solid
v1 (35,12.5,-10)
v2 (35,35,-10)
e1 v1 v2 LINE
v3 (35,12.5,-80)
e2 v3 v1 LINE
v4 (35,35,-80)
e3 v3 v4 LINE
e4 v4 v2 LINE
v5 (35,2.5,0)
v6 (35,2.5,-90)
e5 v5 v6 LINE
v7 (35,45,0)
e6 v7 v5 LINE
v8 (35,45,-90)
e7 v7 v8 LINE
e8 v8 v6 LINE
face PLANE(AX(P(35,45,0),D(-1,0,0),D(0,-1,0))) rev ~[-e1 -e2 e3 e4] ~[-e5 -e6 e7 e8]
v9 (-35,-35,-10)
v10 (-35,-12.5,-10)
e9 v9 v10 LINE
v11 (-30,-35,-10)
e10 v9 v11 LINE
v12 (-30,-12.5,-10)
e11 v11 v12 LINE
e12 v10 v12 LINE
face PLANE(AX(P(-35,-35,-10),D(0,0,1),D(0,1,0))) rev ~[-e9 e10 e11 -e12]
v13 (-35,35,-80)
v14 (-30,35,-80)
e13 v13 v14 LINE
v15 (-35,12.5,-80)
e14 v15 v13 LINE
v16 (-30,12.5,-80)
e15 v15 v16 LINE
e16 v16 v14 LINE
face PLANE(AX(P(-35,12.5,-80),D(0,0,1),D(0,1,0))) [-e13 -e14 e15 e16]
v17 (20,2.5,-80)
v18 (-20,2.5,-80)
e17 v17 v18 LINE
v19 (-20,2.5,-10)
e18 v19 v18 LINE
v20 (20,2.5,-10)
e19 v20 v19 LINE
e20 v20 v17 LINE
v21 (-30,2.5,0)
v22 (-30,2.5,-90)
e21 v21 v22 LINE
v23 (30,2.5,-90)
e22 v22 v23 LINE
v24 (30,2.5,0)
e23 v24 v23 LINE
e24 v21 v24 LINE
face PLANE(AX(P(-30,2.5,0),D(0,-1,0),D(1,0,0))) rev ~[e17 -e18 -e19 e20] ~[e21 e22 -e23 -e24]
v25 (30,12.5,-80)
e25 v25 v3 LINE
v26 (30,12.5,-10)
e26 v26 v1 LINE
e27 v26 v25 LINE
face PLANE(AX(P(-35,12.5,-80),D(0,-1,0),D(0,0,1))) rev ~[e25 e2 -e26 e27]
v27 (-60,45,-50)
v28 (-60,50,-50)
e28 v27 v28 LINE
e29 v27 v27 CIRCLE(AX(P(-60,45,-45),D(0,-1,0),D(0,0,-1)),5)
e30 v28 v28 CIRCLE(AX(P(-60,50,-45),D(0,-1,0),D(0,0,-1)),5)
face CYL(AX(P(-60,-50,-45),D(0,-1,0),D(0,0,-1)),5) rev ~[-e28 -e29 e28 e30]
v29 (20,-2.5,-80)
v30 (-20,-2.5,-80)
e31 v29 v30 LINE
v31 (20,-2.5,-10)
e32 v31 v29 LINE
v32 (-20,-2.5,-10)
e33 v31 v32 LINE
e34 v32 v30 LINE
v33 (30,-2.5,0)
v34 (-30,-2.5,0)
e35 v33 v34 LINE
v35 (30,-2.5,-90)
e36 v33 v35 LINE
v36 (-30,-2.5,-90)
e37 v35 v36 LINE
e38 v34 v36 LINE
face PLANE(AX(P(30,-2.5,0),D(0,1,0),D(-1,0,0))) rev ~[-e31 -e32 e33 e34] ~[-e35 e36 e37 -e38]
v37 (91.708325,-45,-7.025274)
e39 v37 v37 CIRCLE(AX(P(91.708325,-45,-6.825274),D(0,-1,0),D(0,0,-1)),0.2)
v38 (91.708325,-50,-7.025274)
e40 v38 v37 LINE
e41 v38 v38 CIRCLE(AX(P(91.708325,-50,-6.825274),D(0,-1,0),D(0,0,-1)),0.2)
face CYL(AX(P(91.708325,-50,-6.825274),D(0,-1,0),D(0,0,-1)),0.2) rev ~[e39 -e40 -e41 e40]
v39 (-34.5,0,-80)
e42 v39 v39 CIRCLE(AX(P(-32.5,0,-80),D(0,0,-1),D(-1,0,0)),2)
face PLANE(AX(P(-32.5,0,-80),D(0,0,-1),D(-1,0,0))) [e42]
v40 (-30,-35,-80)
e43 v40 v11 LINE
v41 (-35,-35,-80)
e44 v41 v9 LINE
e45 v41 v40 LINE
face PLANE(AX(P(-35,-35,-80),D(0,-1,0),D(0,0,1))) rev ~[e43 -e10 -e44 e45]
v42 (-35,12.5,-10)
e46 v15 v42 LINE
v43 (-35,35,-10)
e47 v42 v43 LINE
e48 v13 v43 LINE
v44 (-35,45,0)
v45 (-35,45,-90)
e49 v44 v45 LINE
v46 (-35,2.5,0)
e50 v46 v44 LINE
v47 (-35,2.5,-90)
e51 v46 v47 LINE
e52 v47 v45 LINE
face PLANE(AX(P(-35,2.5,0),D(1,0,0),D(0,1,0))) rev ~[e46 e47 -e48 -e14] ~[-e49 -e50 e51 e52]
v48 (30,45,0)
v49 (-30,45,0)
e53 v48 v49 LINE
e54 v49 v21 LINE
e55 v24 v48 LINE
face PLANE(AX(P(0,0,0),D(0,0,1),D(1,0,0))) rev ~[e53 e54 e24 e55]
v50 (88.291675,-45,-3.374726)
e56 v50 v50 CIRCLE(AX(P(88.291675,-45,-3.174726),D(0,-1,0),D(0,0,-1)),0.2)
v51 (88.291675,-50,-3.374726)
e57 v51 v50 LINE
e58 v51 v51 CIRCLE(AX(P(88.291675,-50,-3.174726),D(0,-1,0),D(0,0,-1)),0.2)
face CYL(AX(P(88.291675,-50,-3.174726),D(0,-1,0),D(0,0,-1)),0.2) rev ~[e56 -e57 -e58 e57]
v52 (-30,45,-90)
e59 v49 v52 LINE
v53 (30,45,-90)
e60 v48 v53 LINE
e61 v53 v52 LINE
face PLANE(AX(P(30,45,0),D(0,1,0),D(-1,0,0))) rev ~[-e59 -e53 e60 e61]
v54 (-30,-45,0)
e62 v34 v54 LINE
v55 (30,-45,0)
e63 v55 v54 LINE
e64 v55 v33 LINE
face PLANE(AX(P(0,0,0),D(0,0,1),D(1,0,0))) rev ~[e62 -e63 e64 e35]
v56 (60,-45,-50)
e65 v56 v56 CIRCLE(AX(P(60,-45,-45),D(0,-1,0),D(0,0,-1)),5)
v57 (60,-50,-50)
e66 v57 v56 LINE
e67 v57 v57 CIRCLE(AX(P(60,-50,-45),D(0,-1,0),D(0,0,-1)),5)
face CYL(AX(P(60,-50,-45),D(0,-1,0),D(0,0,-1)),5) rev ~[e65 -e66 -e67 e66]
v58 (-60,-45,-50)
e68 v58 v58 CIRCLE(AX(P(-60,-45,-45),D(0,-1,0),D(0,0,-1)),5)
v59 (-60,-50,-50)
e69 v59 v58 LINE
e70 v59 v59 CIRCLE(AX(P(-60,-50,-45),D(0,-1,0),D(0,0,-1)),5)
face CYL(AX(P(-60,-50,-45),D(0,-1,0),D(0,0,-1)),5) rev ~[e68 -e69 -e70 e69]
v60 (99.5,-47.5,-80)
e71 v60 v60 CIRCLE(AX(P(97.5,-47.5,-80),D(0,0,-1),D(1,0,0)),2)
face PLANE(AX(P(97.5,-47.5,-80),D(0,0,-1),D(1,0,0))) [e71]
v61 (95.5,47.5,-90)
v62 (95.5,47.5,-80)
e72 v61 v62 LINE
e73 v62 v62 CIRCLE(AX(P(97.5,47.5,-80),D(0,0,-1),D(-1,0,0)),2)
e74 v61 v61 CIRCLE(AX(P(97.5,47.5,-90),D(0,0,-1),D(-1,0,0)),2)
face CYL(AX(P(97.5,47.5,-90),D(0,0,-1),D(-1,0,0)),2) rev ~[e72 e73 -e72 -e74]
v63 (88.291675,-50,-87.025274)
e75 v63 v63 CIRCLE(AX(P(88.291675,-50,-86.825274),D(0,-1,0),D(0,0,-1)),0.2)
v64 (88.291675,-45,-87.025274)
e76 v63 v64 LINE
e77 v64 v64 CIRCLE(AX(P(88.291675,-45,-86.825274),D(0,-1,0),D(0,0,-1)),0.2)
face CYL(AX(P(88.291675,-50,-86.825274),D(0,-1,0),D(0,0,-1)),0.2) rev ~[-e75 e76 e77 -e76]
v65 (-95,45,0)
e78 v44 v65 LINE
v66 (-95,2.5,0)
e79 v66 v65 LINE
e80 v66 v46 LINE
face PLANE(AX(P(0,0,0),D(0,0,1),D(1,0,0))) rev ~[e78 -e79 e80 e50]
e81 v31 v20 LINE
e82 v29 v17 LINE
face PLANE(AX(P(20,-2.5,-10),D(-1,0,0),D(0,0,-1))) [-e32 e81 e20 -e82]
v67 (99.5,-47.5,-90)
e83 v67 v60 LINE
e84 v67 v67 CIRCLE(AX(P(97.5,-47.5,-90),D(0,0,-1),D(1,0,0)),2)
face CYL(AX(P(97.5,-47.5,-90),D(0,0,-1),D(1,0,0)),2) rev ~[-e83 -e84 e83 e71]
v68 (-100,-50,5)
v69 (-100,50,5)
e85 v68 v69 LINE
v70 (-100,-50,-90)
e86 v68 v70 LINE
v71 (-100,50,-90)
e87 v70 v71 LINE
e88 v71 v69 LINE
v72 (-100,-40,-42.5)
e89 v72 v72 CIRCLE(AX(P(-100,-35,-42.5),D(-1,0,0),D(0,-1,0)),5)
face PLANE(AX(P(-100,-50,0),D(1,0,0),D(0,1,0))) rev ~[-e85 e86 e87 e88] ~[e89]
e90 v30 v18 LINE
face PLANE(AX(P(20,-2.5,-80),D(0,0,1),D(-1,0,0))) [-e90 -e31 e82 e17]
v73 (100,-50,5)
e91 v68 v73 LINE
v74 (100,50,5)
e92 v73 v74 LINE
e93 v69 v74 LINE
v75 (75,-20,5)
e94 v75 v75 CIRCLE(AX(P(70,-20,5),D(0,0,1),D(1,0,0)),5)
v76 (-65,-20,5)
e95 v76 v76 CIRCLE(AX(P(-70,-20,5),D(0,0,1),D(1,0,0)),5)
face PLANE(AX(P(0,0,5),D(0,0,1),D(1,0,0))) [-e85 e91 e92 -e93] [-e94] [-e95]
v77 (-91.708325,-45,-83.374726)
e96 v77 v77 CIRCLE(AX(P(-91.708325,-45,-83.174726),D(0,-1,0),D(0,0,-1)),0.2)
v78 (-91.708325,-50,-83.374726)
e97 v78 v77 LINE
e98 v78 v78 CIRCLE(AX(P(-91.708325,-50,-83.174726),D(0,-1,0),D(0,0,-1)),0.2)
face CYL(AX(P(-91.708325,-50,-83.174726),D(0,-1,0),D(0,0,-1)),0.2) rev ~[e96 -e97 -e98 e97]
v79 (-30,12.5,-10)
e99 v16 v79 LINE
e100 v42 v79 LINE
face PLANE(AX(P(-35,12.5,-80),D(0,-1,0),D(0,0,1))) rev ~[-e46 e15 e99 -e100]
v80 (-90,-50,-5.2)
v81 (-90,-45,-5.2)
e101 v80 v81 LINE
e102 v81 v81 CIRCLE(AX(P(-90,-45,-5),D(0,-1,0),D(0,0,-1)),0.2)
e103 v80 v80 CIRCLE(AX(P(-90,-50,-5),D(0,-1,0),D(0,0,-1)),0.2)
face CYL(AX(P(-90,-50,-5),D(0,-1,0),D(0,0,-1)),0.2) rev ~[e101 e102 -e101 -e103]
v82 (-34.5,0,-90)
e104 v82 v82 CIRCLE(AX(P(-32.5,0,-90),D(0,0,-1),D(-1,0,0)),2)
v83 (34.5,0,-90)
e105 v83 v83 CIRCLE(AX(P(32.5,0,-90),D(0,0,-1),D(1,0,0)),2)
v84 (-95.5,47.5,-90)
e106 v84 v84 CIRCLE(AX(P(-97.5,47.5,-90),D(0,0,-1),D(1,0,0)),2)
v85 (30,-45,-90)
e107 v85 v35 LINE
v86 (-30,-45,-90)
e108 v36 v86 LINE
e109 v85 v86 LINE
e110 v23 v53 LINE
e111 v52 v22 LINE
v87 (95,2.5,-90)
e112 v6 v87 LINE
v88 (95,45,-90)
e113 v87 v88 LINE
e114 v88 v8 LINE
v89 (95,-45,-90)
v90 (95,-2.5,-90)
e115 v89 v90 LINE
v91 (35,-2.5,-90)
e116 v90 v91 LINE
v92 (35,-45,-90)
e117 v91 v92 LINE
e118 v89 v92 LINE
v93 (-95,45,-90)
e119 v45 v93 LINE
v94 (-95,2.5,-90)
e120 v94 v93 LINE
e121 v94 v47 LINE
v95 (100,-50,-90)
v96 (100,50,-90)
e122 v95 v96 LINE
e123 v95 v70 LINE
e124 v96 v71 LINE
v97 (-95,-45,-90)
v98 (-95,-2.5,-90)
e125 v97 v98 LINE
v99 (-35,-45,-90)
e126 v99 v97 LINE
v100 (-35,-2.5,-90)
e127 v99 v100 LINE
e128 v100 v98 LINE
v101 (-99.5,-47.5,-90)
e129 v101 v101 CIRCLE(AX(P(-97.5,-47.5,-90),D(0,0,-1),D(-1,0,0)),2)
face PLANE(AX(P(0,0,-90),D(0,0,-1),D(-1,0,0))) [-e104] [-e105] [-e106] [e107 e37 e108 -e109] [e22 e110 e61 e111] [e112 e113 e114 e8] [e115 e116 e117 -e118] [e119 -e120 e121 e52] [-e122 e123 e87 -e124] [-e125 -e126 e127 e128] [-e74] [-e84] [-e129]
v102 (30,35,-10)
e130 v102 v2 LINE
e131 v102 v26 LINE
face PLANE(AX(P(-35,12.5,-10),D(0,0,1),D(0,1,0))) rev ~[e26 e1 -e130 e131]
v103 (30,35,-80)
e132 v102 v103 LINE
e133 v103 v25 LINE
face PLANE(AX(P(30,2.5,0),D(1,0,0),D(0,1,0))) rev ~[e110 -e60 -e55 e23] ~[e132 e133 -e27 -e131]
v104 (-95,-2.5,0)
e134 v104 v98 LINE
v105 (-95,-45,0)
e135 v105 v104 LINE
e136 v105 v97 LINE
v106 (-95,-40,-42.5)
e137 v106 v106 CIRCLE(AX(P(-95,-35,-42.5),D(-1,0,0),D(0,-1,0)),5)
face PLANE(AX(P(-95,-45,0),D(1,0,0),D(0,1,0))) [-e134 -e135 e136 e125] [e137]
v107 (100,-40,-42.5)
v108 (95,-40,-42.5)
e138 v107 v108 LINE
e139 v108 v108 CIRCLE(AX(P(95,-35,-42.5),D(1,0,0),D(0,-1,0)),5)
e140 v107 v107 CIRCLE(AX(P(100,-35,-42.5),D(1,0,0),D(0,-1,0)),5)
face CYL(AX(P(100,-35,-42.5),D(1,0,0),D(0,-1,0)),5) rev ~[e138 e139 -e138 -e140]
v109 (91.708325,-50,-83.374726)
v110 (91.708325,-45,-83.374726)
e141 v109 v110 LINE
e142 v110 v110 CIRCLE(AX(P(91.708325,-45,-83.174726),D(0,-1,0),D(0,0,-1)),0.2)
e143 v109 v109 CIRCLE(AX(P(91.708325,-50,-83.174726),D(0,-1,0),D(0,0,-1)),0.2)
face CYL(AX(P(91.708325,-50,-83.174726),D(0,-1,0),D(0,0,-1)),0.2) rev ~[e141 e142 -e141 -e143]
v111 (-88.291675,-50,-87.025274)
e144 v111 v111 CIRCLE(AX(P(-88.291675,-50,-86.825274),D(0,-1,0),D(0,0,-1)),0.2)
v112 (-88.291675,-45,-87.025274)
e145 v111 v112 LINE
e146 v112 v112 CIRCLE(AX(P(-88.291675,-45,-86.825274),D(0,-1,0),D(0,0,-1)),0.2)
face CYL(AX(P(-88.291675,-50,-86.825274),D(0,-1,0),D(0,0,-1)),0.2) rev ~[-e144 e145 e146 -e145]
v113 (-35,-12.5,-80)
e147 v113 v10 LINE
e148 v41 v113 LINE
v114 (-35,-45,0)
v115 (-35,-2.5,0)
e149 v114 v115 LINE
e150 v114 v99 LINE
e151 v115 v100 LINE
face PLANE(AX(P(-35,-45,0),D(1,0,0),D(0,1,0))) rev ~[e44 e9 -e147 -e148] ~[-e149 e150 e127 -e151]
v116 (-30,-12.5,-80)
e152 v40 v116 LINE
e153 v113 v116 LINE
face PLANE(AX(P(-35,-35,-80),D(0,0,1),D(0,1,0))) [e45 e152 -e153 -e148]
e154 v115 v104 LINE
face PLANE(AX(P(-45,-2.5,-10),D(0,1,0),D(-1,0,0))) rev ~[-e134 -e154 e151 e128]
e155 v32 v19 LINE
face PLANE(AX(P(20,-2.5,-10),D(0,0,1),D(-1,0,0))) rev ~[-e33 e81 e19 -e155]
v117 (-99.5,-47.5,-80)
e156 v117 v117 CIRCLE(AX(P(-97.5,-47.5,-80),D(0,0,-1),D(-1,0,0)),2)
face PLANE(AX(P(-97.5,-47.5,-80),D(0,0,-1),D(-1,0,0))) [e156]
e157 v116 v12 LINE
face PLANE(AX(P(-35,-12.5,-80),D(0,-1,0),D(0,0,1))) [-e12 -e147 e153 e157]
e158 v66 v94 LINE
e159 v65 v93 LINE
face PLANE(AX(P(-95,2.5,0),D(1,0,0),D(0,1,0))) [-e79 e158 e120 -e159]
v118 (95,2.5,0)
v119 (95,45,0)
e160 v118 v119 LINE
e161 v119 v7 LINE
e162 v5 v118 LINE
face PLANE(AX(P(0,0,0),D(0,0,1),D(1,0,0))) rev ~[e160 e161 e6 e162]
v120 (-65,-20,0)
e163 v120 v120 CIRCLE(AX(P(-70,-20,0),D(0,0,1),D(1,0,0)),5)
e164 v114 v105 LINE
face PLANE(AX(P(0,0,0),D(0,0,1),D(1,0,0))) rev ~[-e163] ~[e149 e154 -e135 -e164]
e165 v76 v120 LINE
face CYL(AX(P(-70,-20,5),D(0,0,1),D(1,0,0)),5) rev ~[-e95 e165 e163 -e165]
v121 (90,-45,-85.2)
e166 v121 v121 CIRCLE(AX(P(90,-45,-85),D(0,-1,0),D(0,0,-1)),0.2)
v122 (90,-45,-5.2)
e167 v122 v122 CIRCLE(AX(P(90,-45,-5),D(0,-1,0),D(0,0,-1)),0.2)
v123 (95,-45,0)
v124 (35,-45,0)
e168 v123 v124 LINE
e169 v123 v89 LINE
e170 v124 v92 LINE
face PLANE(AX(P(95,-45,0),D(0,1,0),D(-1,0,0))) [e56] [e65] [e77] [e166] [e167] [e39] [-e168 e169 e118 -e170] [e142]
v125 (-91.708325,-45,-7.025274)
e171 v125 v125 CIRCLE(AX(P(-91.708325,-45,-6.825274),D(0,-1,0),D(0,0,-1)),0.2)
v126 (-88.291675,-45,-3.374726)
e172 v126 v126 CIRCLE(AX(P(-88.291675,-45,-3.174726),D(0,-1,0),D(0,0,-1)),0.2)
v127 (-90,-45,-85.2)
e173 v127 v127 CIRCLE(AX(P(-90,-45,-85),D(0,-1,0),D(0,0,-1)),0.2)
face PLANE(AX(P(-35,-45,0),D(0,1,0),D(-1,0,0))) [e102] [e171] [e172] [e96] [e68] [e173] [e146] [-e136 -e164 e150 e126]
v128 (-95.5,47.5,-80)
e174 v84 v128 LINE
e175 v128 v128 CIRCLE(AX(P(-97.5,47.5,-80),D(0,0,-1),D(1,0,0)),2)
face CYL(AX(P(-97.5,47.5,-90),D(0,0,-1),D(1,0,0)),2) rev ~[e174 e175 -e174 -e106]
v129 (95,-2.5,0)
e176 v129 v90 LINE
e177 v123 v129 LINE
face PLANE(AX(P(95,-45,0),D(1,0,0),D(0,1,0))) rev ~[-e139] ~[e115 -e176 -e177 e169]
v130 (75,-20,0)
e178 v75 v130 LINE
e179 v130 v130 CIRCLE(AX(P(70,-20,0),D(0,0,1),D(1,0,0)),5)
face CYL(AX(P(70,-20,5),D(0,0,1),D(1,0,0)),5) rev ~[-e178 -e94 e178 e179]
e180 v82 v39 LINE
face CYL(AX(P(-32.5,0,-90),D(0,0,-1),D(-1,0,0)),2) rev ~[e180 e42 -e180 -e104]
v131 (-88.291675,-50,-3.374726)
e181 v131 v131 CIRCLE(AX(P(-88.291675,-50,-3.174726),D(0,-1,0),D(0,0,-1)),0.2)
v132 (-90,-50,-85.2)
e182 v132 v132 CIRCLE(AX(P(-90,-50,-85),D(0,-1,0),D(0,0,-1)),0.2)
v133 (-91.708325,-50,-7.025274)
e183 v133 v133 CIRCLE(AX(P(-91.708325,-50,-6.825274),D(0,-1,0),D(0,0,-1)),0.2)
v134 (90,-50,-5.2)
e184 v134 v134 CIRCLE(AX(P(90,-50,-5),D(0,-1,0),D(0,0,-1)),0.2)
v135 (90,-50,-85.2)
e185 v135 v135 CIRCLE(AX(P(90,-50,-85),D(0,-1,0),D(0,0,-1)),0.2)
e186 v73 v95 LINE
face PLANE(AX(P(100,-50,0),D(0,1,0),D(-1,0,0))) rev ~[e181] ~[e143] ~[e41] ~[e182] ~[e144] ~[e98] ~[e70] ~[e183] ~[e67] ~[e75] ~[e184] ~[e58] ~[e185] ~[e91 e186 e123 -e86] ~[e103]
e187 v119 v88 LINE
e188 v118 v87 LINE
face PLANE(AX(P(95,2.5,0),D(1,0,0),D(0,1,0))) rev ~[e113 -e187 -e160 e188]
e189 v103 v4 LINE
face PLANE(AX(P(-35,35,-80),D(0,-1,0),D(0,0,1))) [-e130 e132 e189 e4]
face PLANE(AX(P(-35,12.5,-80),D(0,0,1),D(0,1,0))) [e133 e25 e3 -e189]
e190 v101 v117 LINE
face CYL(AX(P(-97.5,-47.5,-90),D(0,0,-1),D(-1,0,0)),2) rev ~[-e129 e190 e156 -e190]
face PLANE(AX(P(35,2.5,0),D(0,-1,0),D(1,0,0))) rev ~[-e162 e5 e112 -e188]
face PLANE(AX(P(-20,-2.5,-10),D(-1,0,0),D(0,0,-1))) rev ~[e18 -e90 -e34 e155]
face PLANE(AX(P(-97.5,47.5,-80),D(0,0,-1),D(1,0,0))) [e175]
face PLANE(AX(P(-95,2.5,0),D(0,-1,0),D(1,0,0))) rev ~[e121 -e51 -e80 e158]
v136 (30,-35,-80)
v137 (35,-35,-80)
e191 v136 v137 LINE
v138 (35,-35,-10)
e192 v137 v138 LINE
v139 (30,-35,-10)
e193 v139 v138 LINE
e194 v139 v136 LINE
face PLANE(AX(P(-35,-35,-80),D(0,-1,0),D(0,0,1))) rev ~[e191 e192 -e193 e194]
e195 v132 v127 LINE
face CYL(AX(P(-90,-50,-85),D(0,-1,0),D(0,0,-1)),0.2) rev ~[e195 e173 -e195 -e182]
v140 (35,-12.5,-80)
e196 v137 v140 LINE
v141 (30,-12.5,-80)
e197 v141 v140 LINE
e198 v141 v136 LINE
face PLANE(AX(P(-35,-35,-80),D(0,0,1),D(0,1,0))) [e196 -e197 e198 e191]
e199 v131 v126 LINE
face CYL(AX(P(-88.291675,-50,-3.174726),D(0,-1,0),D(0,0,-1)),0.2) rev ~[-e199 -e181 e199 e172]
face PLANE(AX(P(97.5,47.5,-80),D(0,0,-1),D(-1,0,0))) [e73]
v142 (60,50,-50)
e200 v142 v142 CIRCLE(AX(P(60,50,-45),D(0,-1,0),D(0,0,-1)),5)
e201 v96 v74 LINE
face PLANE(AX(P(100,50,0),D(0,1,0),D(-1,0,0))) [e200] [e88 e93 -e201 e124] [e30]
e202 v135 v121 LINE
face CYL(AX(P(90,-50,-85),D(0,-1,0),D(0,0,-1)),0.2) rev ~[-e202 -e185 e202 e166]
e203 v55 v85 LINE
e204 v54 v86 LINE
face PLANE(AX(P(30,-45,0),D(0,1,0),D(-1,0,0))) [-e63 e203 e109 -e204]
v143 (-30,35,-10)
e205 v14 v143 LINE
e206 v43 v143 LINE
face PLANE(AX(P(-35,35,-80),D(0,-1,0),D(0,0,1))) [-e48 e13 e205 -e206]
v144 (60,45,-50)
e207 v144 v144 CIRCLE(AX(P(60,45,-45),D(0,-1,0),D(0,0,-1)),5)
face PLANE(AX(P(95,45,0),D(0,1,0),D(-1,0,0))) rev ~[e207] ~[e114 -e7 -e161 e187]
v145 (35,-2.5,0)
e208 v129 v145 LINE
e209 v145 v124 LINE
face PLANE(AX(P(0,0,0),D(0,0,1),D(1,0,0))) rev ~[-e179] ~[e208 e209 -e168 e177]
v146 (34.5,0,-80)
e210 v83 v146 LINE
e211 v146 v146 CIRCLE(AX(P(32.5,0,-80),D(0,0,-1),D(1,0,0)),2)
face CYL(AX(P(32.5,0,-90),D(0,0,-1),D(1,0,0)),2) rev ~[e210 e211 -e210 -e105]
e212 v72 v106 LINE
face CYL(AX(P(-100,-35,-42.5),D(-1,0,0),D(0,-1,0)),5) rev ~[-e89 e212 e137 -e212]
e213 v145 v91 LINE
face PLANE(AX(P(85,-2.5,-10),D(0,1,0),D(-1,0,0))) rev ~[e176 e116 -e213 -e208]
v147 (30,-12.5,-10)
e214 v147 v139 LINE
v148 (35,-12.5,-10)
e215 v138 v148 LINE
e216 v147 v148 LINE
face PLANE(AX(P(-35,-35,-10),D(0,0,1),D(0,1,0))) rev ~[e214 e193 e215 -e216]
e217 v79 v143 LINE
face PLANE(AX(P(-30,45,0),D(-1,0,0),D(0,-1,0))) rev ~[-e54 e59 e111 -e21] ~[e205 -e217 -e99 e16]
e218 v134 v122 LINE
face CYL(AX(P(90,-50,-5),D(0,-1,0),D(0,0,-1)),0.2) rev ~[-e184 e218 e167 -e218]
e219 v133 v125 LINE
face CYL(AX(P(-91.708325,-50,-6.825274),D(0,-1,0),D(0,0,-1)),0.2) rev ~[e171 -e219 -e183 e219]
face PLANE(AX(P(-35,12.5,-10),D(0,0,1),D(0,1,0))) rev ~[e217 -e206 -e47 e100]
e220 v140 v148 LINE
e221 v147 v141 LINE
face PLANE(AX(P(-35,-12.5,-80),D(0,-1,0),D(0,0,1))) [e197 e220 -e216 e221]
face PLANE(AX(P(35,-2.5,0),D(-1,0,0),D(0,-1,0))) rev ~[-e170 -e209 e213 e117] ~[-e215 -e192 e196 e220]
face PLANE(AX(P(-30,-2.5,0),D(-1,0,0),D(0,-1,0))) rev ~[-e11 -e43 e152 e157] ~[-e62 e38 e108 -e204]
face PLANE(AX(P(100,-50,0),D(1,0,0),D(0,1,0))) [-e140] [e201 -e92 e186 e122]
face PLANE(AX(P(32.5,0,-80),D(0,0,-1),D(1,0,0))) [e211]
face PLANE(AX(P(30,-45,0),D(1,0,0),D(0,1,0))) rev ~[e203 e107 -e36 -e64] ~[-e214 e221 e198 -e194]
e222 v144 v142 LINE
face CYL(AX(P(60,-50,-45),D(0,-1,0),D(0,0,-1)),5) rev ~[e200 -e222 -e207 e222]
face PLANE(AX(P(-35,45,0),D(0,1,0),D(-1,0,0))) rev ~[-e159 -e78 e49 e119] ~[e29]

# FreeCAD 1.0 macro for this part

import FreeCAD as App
import Part
import Sketcher
Q = App.Units.Quantity

doc = App.newDocument("Part")
body = doc.addObject("PartDesign::Body", "Body")

# Sketch on XY plane
sketch1 = body.newObject("Sketcher::SketchObject", "Sketch")
sketch1.AttachmentSupport = (doc.getObject("XY_Plane"), [""])
sketch1.MapMode = "FlatFace"
sketch1.addGeometry([
    Part.LineSegment(App.Vector(-100, 50, 0), App.Vector(-100, -50, 0)),
    Part.LineSegment(App.Vector(-100, -50, 0), App.Vector(100, -50, 0)),
    Part.LineSegment(App.Vector(100, -50, 0), App.Vector(100, 50, 0)),
    Part.LineSegment(App.Vector(100, 50, 0), App.Vector(-100, 50, 0)),
], False)
sketch1.addConstraint([
    Sketcher.Constraint("Coincident", 0, 2, 1, 1),
    Sketcher.Constraint("Coincident", 1, 2, 2, 1),
    Sketcher.Constraint("Coincident", 2, 2, 3, 1),
    Sketcher.Constraint("Coincident", 3, 2, 0, 1),
    Sketcher.Constraint("Vertical", 0),
    Sketcher.Constraint("Horizontal", 1),
    Sketcher.Constraint("Vertical", 2),
    Sketcher.Constraint("Horizontal", 3),
    Sketcher.Constraint("Symmetric", 0, 2, 2, 2, -1, 1),
    Sketcher.Constraint("DistanceX", 1, 1, 1, 2, Q("200 mm")),
    Sketcher.Constraint("DistanceY", 0, 2, 0, 1, Q("100 mm")),
])
pad1 = body.newObject("PartDesign::Pad", "Pad")
pad1.Profile = sketch1
pad1.Length = 5

# Sketch on XY plane
sketch2 = body.newObject("Sketcher::SketchObject", "Sketch001")
sketch2.AttachmentSupport = (doc.getObject("XY_Plane"), [""])
sketch2.MapMode = "FlatFace"
sketch2.addGeometry([
    Part.LineSegment(App.Vector(100, 50, 0), App.Vector(100, -50, 0)),  # 0
    Part.LineSegment(App.Vector(100, -50, 0), App.Vector(-100, -50, 0)),  # 1
    Part.LineSegment(App.Vector(-100, -50, 0), App.Vector(-100, 50, 0)),  # 2
    Part.LineSegment(App.Vector(-100, 50, 0), App.Vector(100, 50, 0)),  # 3
    Part.LineSegment(App.Vector(35, -45, 0), App.Vector(95, -45, 0)),  # 4
    Part.LineSegment(App.Vector(95, -45, 0), App.Vector(95, -2, 0)),  # 5
    Part.LineSegment(App.Vector(95, -2, 0), App.Vector(35, -2, 0)),  # 6
    Part.LineSegment(App.Vector(35, -2, 0), App.Vector(35, -45, 0)),  # 7
    Part.LineSegment(App.Vector(-30, -45, 0), App.Vector(30, -45, 0)),  # 8
    Part.LineSegment(App.Vector(30, -45, 0), App.Vector(30, -2, 0)),  # 9
    Part.LineSegment(App.Vector(30, -2, 0), App.Vector(-30, -2, 0)),  # 10
    Part.LineSegment(App.Vector(-30, -2, 0), App.Vector(-30, -45, 0)),  # 11
    Part.LineSegment(App.Vector(-95, -45, 0), App.Vector(-35, -45, 0)),  # 12
    Part.LineSegment(App.Vector(-35, -45, 0), App.Vector(-35, -2, 0)),  # 13
    Part.LineSegment(App.Vector(-35, -2, 0), App.Vector(-95, -2, 0)),  # 14
    Part.LineSegment(App.Vector(-95, -2, 0), App.Vector(-95, -45, 0)),  # 15
    Part.LineSegment(App.Vector(-95, 45, 0), App.Vector(-95, 2, 0)),  # 16
    Part.LineSegment(App.Vector(-95, 2, 0), App.Vector(-35, 2, 0)),  # 17
    Part.LineSegment(App.Vector(-35, 2, 0), App.Vector(-35, 45, 0)),  # 18
    Part.LineSegment(App.Vector(-35, 45, 0), App.Vector(-95, 45, 0)),  # 19
    Part.LineSegment(App.Vector(95, 45, 0), App.Vector(35, 45, 0)),  # 20
    Part.LineSegment(App.Vector(35, 45, 0), App.Vector(35, 2, 0)),  # 21
    Part.LineSegment(App.Vector(35, 2, 0), App.Vector(95, 2, 0)),  # 22
    Part.LineSegment(App.Vector(95, 2, 0), App.Vector(95, 45, 0)),  # 23
    Part.LineSegment(App.Vector(30, 45, 0), App.Vector(-30, 45, 0)),  # 24
    Part.LineSegment(App.Vector(-30, 45, 0), App.Vector(-30, 2, 0)),  # 25
    Part.LineSegment(App.Vector(-30, 2, 0), App.Vector(30, 2, 0)),  # 26
    Part.LineSegment(App.Vector(30, 2, 0), App.Vector(30, 45, 0)),  # 27
], False)
sketch2.addConstraint([
    Sketcher.Constraint("Coincident", 0, 2, 1, 1),
    Sketcher.Constraint("Coincident", 1, 2, 2, 1),
    Sketcher.Constraint("Coincident", 2, 2, 3, 1),
    Sketcher.Constraint("Coincident", 3, 2, 0, 1),
    Sketcher.Constraint("Coincident", 4, 2, 5, 1),
    Sketcher.Constraint("Coincident", 5, 2, 6, 1),
    Sketcher.Constraint("Coincident", 6, 2, 7, 1),
    Sketcher.Constraint("Coincident", 7, 2, 4, 1),
    Sketcher.Constraint("Coincident", 8, 2, 9, 1),
    Sketcher.Constraint("Coincident", 9, 2, 10, 1),
    Sketcher.Constraint("Coincident", 10, 2, 11, 1),
    Sketcher.Constraint("Coincident", 11, 2, 8, 1),
    Sketcher.Constraint("Coincident", 12, 2, 13, 1),
    Sketcher.Constraint("Coincident", 13, 2, 14, 1),
    Sketcher.Constraint("Coincident", 14, 2, 15, 1),
    Sketcher.Constraint("Coincident", 15, 2, 12, 1),
    Sketcher.Constraint("Coincident", 16, 2, 17, 1),
    Sketcher.Constraint("Coincident", 17, 2, 18, 1),
    Sketcher.Constraint("Coincident", 18, 2, 19, 1),
    Sketcher.Constraint("Coincident", 19, 2, 16, 1),
    Sketcher.Constraint("Coincident", 20, 2, 21, 1),
    Sketcher.Constraint("Coincident", 21, 2, 22, 1),
    Sketcher.Constraint("Coincident", 22, 2, 23, 1),
    Sketcher.Constraint("Coincident", 23, 2, 20, 1),
    Sketcher.Constraint("Coincident", 24, 2, 25, 1),
    Sketcher.Constraint("Coincident", 25, 2, 26, 1),
    Sketcher.Constraint("Coincident", 26, 2, 27, 1),
    Sketcher.Constraint("Coincident", 27, 2, 24, 1),
    Sketcher.Constraint("Vertical", 0),
    Sketcher.Constraint("Horizontal", 1),
    Sketcher.Constraint("Vertical", 2),
    Sketcher.Constraint("Horizontal", 3),
    Sketcher.Constraint("Horizontal", 4),
    Sketcher.Constraint("Vertical", 5),
    Sketcher.Constraint("Horizontal", 6),
    Sketcher.Constraint("Vertical", 7),
    Sketcher.Constraint("Horizontal", 8),
    Sketcher.Constraint("Vertical", 9),
    Sketcher.Constraint("Horizontal", 10),
    Sketcher.Constraint("Vertical", 11),
    Sketcher.Constraint("Horizontal", 12),
    Sketcher.Constraint("Vertical", 13),
    Sketcher.Constraint("Horizontal", 14),
    Sketcher.Constraint("Vertical", 15),
    Sketcher.Constraint("Vertical", 16),
    Sketcher.Constraint("Horizontal", 17),
    Sketcher.Constraint("Vertical", 18),
    Sketcher.Constraint("Horizontal", 19),
    Sketcher.Constraint("Horizontal", 20),
    Sketcher.Constraint("Vertical", 21),
    Sketcher.Constraint("Horizontal", 22),
    Sketcher.Constraint("Vertical", 23),
    Sketcher.Constraint("Horizontal", 24),
    Sketcher.Constraint("Vertical", 25),
    Sketcher.Constraint("Horizontal", 26),
    Sketcher.Constraint("Vertical", 27),
    Sketcher.Constraint("Symmetric", 0, 2, 2, 2, -1, 1),
    Sketcher.Constraint("Symmetric", 5, 2, 16, 2, -1, 1),
    Sketcher.Constraint("Symmetric", 7, 2, 18, 2, -1, 1),
    Sketcher.Constraint("Symmetric", 12, 2, 20, 2, -1, 1),
    Sketcher.Constraint("Symmetric", 14, 2, 22, 2, -1, 1),
    Sketcher.Constraint("Symmetric", 8, 2, 24, 2, -1, 1),
    Sketcher.Constraint("Symmetric", 10, 2, 26, 2, -1, 1),
    Sketcher.Constraint("Symmetric", 7, 2, 12, 2, -2),
    Sketcher.Constraint("Symmetric", 5, 2, 14, 2, -2),
    Sketcher.Constraint("Horizontal", 7, 2, 8, 2),
    Sketcher.Constraint("Horizontal", 6, 2, 9, 2),
    Sketcher.Constraint("Vertical", 11, 2, 24, 2),
    Sketcher.Constraint("Equal", 6, 8),
    Sketcher.Constraint("DistanceX", 1, 2, 1, 1, Q("200 mm")),
    Sketcher.Constraint("DistanceX", 4, 1, 4, 2, Q("60 mm")),
    Sketcher.Constraint("DistanceY", 0, 2, 0, 1, Q("100 mm")),
    Sketcher.Constraint("DistanceY", 5, 1, 5, 2, Q("42.5 mm")),
    Sketcher.Constraint("DistanceX", -1, 1, 4, 2, Q("95 mm")),
    Sketcher.Constraint("DistanceY", 4, 2, -1, 1, Q("45 mm")),
])
pad2 = body.newObject("PartDesign::Pad", "Pad001")
pad2.Profile = sketch2
pad2.Length = 90
pad2.Reversed = True

# Sketch on YZ plane
sketch3 = body.newObject("Sketcher::SketchObject", "Sketch002")
sketch3.AttachmentSupport = (doc.getObject("YZ_Plane"), [""])
sketch3.MapMode = "FlatFace"
sketch3.AttachmentOffset = App.Placement(App.Vector(0, 0, -35), App.Rotation())
sketch3.addGeometry([
    Part.LineSegment(App.Vector(35, -80, 0), App.Vector(12, -80, 0)),
    Part.LineSegment(App.Vector(12, -80, 0), App.Vector(12, -10, 0)),
    Part.LineSegment(App.Vector(12, -10, 0), App.Vector(35, -10, 0)),
    Part.LineSegment(App.Vector(35, -10, 0), App.Vector(35, -80, 0)),
], False)
sketch3.addConstraint([
    Sketcher.Constraint("Coincident", 0, 2, 1, 1),
    Sketcher.Constraint("Coincident", 1, 2, 2, 1),
    Sketcher.Constraint("Coincident", 2, 2, 3, 1),
    Sketcher.Constraint("Coincident", 3, 2, 0, 1),
    Sketcher.Constraint("Horizontal", 0),
    Sketcher.Constraint("Vertical", 1),
    Sketcher.Constraint("Horizontal", 2),
    Sketcher.Constraint("Vertical", 3),
    Sketcher.Constraint("DistanceY", 1, 1, 1, 2, Q("70 mm")),
    Sketcher.Constraint("DistanceX", 0, 2, 0, 1, Q("22.5 mm")),
    Sketcher.Constraint("DistanceY", 0, 2, -1, 1, Q("80 mm")),
    Sketcher.Constraint("DistanceX", -1, 1, 2, 2, Q("35 mm")),
])
pocket1 = body.newObject("PartDesign::Pocket", "Pocket")
pocket1.Profile = sketch3
pocket1.Length = 90
pocket1.Reversed = True

# Sketch on YZ plane
sketch4 = body.newObject("Sketcher::SketchObject", "Sketch003")
sketch4.AttachmentSupport = (doc.getObject("YZ_Plane"), [""])
sketch4.MapMode = "FlatFace"
sketch4.AttachmentOffset = App.Placement(App.Vector(0, 0, -35), App.Rotation())
sketch4.addGeometry([
    Part.LineSegment(App.Vector(-12, -80, 0), App.Vector(-35, -80, 0)),
    Part.LineSegment(App.Vector(-35, -80, 0), App.Vector(-35, -10, 0)),
    Part.LineSegment(App.Vector(-35, -10, 0), App.Vector(-12, -10, 0)),
    Part.LineSegment(App.Vector(-12, -10, 0), App.Vector(-12, -80, 0)),
], False)
sketch4.addConstraint([
    Sketcher.Constraint("Coincident", 0, 2, 1, 1),
    Sketcher.Constraint("Coincident", 1, 2, 2, 1),
    Sketcher.Constraint("Coincident", 2, 2, 3, 1),
    Sketcher.Constraint("Coincident", 3, 2, 0, 1),
    Sketcher.Constraint("Horizontal", 0),
    Sketcher.Constraint("Vertical", 1),
    Sketcher.Constraint("Horizontal", 2),
    Sketcher.Constraint("Vertical", 3),
    Sketcher.Constraint("DistanceY", 1, 1, 1, 2, Q("70 mm")),
    Sketcher.Constraint("DistanceX", 0, 2, 0, 1, Q("22.5 mm")),
    Sketcher.Constraint("DistanceX", 0, 2, -1, 1, Q("35 mm")),
    Sketcher.Constraint("DistanceY", 0, 2, -1, 1, Q("80 mm")),
])
pocket2 = body.newObject("PartDesign::Pocket", "Pocket001")
pocket2.Profile = sketch4
pocket2.Length = 90
pocket2.Reversed = True

# Sketch on XZ plane
sketch5 = body.newObject("Sketcher::SketchObject", "Sketch004")
sketch5.AttachmentSupport = (doc.getObject("XZ_Plane"), [""])
sketch5.MapMode = "FlatFace"
sketch5.AttachmentOffset = App.Placement(App.Vector(0, 0, 2.5), App.Rotation())
sketch5.addGeometry([
    Part.LineSegment(App.Vector(-45, -80, 0), App.Vector(-45, -10, 0)),
    Part.LineSegment(App.Vector(-45, -10, 0), App.Vector(-85, -10, 0)),
    Part.LineSegment(App.Vector(-85, -10, 0), App.Vector(-85, -80, 0)),
    Part.LineSegment(App.Vector(-85, -80, 0), App.Vector(-45, -80, 0)),
], False)
sketch5.addConstraint([
    Sketcher.Constraint("Coincident", 0, 2, 1, 1),
    Sketcher.Constraint("Coincident", 1, 2, 2, 1),
    Sketcher.Constraint("Coincident", 2, 2, 3, 1),
    Sketcher.Constraint("Coincident", 3, 2, 0, 1),
    Sketcher.Constraint("Vertical", 0),
    Sketcher.Constraint("Horizontal", 1),
    Sketcher.Constraint("Vertical", 2),
    Sketcher.Constraint("Horizontal", 3),
    Sketcher.Constraint("DistanceX", 1, 2, 1, 1, Q("40 mm")),
    Sketcher.Constraint("DistanceY", 0, 1, 0, 2, Q("70 mm")),
    Sketcher.Constraint("DistanceX", 0, 2, -1, 1, Q("45 mm")),
    Sketcher.Constraint("DistanceY", 0, 2, -1, 1, Q("10 mm")),
])
pocket3 = body.newObject("PartDesign::Pocket", "Pocket002")
pocket3.Profile = sketch5
pocket3.Length = 10

# Sketch on XZ plane
sketch6 = body.newObject("Sketcher::SketchObject", "Sketch005")
sketch6.AttachmentSupport = (doc.getObject("XZ_Plane"), [""])
sketch6.MapMode = "FlatFace"
sketch6.AttachmentOffset = App.Placement(App.Vector(0, 0, 2.5), App.Rotation())
sketch6.addGeometry([
    Part.LineSegment(App.Vector(20, -80, 0), App.Vector(20, -10, 0)),
    Part.LineSegment(App.Vector(20, -10, 0), App.Vector(-20, -10, 0)),
    Part.LineSegment(App.Vector(-20, -10, 0), App.Vector(-20, -80, 0)),
    Part.LineSegment(App.Vector(-20, -80, 0), App.Vector(20, -80, 0)),
], False)
sketch6.addConstraint([
    Sketcher.Constraint("Coincident", 0, 2, 1, 1),
    Sketcher.Constraint("Coincident", 1, 2, 2, 1),
    Sketcher.Constraint("Coincident", 2, 2, 3, 1),
    Sketcher.Constraint("Coincident", 3, 2, 0, 1),
    Sketcher.Constraint("Vertical", 0),
    Sketcher.Constraint("Horizontal", 1),
    Sketcher.Constraint("Vertical", 2),
    Sketcher.Constraint("Horizontal", 3),
    Sketcher.Constraint("DistanceX", 1, 2, 1, 1, Q("40 mm")),
    Sketcher.Constraint("DistanceY", 0, 1, 0, 2, Q("70 mm")),
    Sketcher.Constraint("DistanceX", -1, 1, 0, 2, Q("20 mm")),
    Sketcher.Constraint("DistanceY", 0, 2, -1, 1, Q("10 mm")),
])
pocket4 = body.newObject("PartDesign::Pocket", "Pocket003")
pocket4.Profile = sketch6
pocket4.Length = 10

# Sketch on XZ plane
sketch7 = body.newObject("Sketcher::SketchObject", "Sketch006")
sketch7.AttachmentSupport = (doc.getObject("XZ_Plane"), [""])
sketch7.MapMode = "FlatFace"
sketch7.AttachmentOffset = App.Placement(App.Vector(0, 0, 2.5), App.Rotation())
sketch7.addGeometry([
    Part.LineSegment(App.Vector(85, -80, 0), App.Vector(85, -10, 0)),
    Part.LineSegment(App.Vector(85, -10, 0), App.Vector(45, -10, 0)),
    Part.LineSegment(App.Vector(45, -10, 0), App.Vector(45, -80, 0)),
    Part.LineSegment(App.Vector(45, -80, 0), App.Vector(85, -80, 0)),
], False)
sketch7.addConstraint([
    Sketcher.Constraint("Coincident", 0, 2, 1, 1),
    Sketcher.Constraint("Coincident", 1, 2, 2, 1),
    Sketcher.Constraint("Coincident", 2, 2, 3, 1),
    Sketcher.Constraint("Coincident", 3, 2, 0, 1),
    Sketcher.Constraint("Vertical", 0),
    Sketcher.Constraint("Horizontal", 1),
    Sketcher.Constraint("Vertical", 2),
    Sketcher.Constraint("Horizontal", 3),
    Sketcher.Constraint("DistanceX", 1, 2, 1, 1, Q("40 mm")),
    Sketcher.Constraint("DistanceY", 0, 1, 0, 2, Q("70 mm")),
    Sketcher.Constraint("DistanceX", -1, 1, 0, 2, Q("85 mm")),
    Sketcher.Constraint("DistanceY", 0, 2, -1, 1, Q("10 mm")),
])
pocket5 = body.newObject("PartDesign::Pocket", "Pocket004")
pocket5.Profile = sketch7
pocket5.Length = 10

# Sketch on XY plane
sketch8 = body.newObject("Sketcher::SketchObject", "Sketch007")
sketch8.AttachmentSupport = (doc.getObject("XY_Plane"), [""])
sketch8.MapMode = "FlatFace"
sketch8.AttachmentOffset = App.Placement(App.Vector(0, 0, -90), App.Rotation())
sketch8.addGeometry([
    Part.Circle(App.Vector(-32.5, 0, 0), App.Vector(0, 0, 1), 2),  # 0
    Part.Circle(App.Vector(-97.5, -47.5, 0), App.Vector(0, 0, 1), 2),  # 1
    Part.Circle(App.Vector(-97.5, 47.5, 0), App.Vector(0, 0, 1), 2),  # 2
    Part.Circle(App.Vector(97.5, 47.5, 0), App.Vector(0, 0, 1), 2),  # 3
    Part.Circle(App.Vector(32.5, 0, 0), App.Vector(0, 0, 1), 2),  # 4
    Part.Circle(App.Vector(97.5, -47.5, 0), App.Vector(0, 0, 1), 2),  # 5
], False)
sketch8.addConstraint([
    Sketcher.Constraint("Equal", 0, 1),
    Sketcher.Constraint("Equal", 1, 2),
    Sketcher.Constraint("Equal", 2, 3),
    Sketcher.Constraint("Equal", 3, 4),
    Sketcher.Constraint("Equal", 4, 5),
    Sketcher.Constraint("Symmetric", 1, 3, 3, 3, -1, 1),
    Sketcher.Constraint("Symmetric", 0, 3, 4, 3, -1, 1),
    Sketcher.Constraint("Symmetric", 2, 3, 5, 3, -1, 1),
    Sketcher.Constraint("Symmetric", 2, 3, 3, 3, -2),
    Sketcher.Constraint("PointOnObject", 0, 3, -1),
    Sketcher.Constraint("Diameter", 0, Q("4 mm")),
    Sketcher.Constraint("DistanceX", 1, 3, 0, 3, Q("65 mm")),
    Sketcher.Constraint("DistanceY", 1, 3, 2, 3, Q("95 mm")),
    Sketcher.Constraint("DistanceX", 0, 3, 3, 3, Q("130 mm")),
])
pocket6 = body.newObject("PartDesign::Pocket", "Pocket005")
pocket6.Profile = sketch8
pocket6.Length = 10
pocket6.Reversed = True

# Sketch on XZ plane
sketch9 = body.newObject("Sketcher::SketchObject", "Sketch008")
sketch9.AttachmentSupport = (doc.getObject("XZ_Plane"), [""])
sketch9.MapMode = "FlatFace"
sketch9.AttachmentOffset = App.Placement(App.Vector(0, 0, 50), App.Rotation())
sketch9.addGeometry([
    Part.Circle(App.Vector(-60, -45, 0), App.Vector(0, 0, 1), 5),
    Part.Circle(App.Vector(60, -45, 0), App.Vector(0, 0, 1), 5),
], False)
sketch9.addConstraint([
    Sketcher.Constraint("Equal", 0, 1),
    Sketcher.Constraint("Symmetric", 0, 3, 1, 3, -2),
    Sketcher.Constraint("Diameter", 0, Q("10 mm")),
    Sketcher.Constraint("DistanceX", 0, 3, -1, 1, Q("60 mm")),
    Sketcher.Constraint("DistanceY", 0, 3, -1, 1, Q("45 mm")),
])
pocket7 = body.newObject("PartDesign::Pocket", "Pocket006")
pocket7.Profile = sketch9
pocket7.Length = 150

# Sketch on YZ plane
sketch10 = body.newObject("Sketcher::SketchObject", "Sketch009")
sketch10.AttachmentSupport = (doc.getObject("YZ_Plane"), [""])
sketch10.MapMode = "FlatFace"
sketch10.AttachmentOffset = App.Placement(App.Vector(0, 0, -100), App.Rotation())
sketch10.addGeometry(Part.Circle(App.Vector(-35, -42, 0), App.Vector(0, 0, 1), 5), False)
sketch10.addConstraint([
    Sketcher.Constraint("Diameter", 0, Q("10 mm")),
    Sketcher.Constraint("DistanceX", 0, 3, -1, 1, Q("35 mm")),
    Sketcher.Constraint("DistanceY", 0, 3, -1, 1, Q("42.5 mm")),
])
pocket8 = body.newObject("PartDesign::Pocket", "Pocket007")
pocket8.Profile = sketch10
pocket8.Length = 10
pocket8.Reversed = True

# Sketch on YZ plane
sketch11 = body.newObject("Sketcher::SketchObject", "Sketch010")
sketch11.AttachmentSupport = (doc.getObject("YZ_Plane"), [""])
sketch11.MapMode = "FlatFace"
sketch11.AttachmentOffset = App.Placement(App.Vector(0, 0, 100), App.Rotation())
sketch11.addGeometry(Part.Circle(App.Vector(-35, -42, 0), App.Vector(0, 0, 1), 5), False)
sketch11.addConstraint([
    Sketcher.Constraint("Diameter", 0, Q("10 mm")),
    Sketcher.Constraint("DistanceX", 0, 3, -1, 1, Q("35 mm")),
    Sketcher.Constraint("DistanceY", 0, 3, -1, 1, Q("42.5 mm")),
])
pocket9 = body.newObject("PartDesign::Pocket", "Pocket008")
pocket9.Profile = sketch11
pocket9.Length = 10

# Sketch on XY plane
sketch12 = body.newObject("Sketcher::SketchObject", "Sketch011")
sketch12.AttachmentSupport = (doc.getObject("XY_Plane"), [""])
sketch12.MapMode = "FlatFace"
sketch12.AttachmentOffset = App.Placement(App.Vector(0, 0, 5), App.Rotation())
sketch12.addGeometry([
    Part.Circle(App.Vector(-70, -20, 0), App.Vector(0, 0, 1), 5),
    Part.Circle(App.Vector(70, -20, 0), App.Vector(0, 0, 1), 5),
], False)
sketch12.addConstraint([
    Sketcher.Constraint("Equal", 0, 1),
    Sketcher.Constraint("Symmetric", 0, 3, 1, 3, -2),
    Sketcher.Constraint("Diameter", 0, Q("10 mm")),
    Sketcher.Constraint("DistanceX", 0, 3, -1, 1, Q("70 mm")),
    Sketcher.Constraint("DistanceY", 0, 3, -1, 1, Q("20 mm")),
])
pocket10 = body.newObject("PartDesign::Pocket", "Pocket009")
pocket10.Profile = sketch12
pocket10.Length = 10

# Sketch on XZ plane
sketch13 = body.newObject("Sketcher::SketchObject", "Sketch012")
sketch13.AttachmentSupport = (doc.getObject("XZ_Plane"), [""])
sketch13.MapMode = "FlatFace"
sketch13.AttachmentOffset = App.Placement(App.Vector(0, 0, 50), App.Rotation())
sketch13.addGeometry([
    Part.Circle(App.Vector(90, -5, 0), App.Vector(0, 0, 1), 0.2),  # 0
    Part.Circle(App.Vector(91.71, -6.83, 0), App.Vector(0, 0, 1), 0.2),  # 1
    Part.Circle(App.Vector(88.29, -3.17, 0), App.Vector(0, 0, 1), 0.2),  # 2
    Part.Circle(App.Vector(-91.71, -6.83, 0), App.Vector(0, 0, 1), 0.2),  # 3
    Part.Circle(App.Vector(-90, -5, 0), App.Vector(0, 0, 1), 0.2),  # 4
    Part.Circle(App.Vector(-88.29, -3.17, 0), App.Vector(0, 0, 1), 0.2),  # 5
    Part.Circle(App.Vector(88.29, -86.83, 0), App.Vector(0, 0, 1), 0.2),  # 6
    Part.Circle(App.Vector(90, -85, 0), App.Vector(0, 0, 1), 0.2),  # 7
    Part.Circle(App.Vector(91.71, -83.17, 0), App.Vector(0, 0, 1), 0.2),  # 8
    Part.Circle(App.Vector(-88.29, -86.83, 0), App.Vector(0, 0, 1), 0.2),  # 9
    Part.Circle(App.Vector(-90, -85, 0), App.Vector(0, 0, 1), 0.2),  # 10
    Part.Circle(App.Vector(-91.71, -83.17, 0), App.Vector(0, 0, 1), 0.2),  # 11
], False)
sketch13.addConstraint([
    Sketcher.Constraint("Equal", 0, 1),
    Sketcher.Constraint("Equal", 1, 2),
    Sketcher.Constraint("Equal", 2, 3),
    Sketcher.Constraint("Equal", 3, 4),
    Sketcher.Constraint("Equal", 4, 5),
    Sketcher.Constraint("Equal", 5, 6),
    Sketcher.Constraint("Equal", 6, 7),
    Sketcher.Constraint("Equal", 7, 8),
    Sketcher.Constraint("Equal", 8, 9),
    Sketcher.Constraint("Equal", 9, 10),
    Sketcher.Constraint("Equal", 10, 11),
    Sketcher.Constraint("Symmetric", 1, 3, 3, 3, -2),
    Sketcher.Constraint("Symmetric", 0, 3, 4, 3, -2),
    Sketcher.Constraint("Symmetric", 2, 3, 5, 3, -2),
    Sketcher.Constraint("Symmetric", 6, 3, 9, 3, -2),
    Sketcher.Constraint("Symmetric", 7, 3, 10, 3, -2),
    Sketcher.Constraint("Symmetric", 8, 3, 11, 3, -2),
    Sketcher.Constraint("Vertical", 2, 3, 6, 3),
    Sketcher.Constraint("Vertical", 0, 3, 7, 3),
    Sketcher.Constraint("Vertical", 1, 3, 8, 3),
    Sketcher.Constraint("Diameter", 0, Q("0.4 mm")),
    Sketcher.Constraint("DistanceX", -1, 1, 0, 3, Q("90 mm")),
    Sketcher.Constraint("DistanceY", 0, 3, -1, 1, Q("5 mm")),
    Sketcher.Constraint("DistanceY", 7, 3, -1, 1, Q("85 mm")),
    Sketcher.Constraint("DistanceX", 3, 3, 2, 3, Q("180 mm")),
    Sketcher.Constraint("DistanceY", 6, 3, 1, 3, Q("80 mm")),
    Sketcher.Constraint("DistanceY", 8, 3, 2, 3, Q("80 mm")),
    Sketcher.Constraint("DistanceX", 2, 3, 1, 3, Q("3.41665 mm")),
    Sketcher.Constraint("DistanceY", 1, 3, 2, 3, Q("3.650548 mm")),
    Sketcher.Constraint("DistanceY", 1, 3, -1, 1, Q("6.825274 mm")),
])
pocket11 = body.newObject("PartDesign::Pocket", "Pocket010")
pocket11.Profile = sketch13
pocket11.Length = 10

# Sketch on XY plane
sketch14 = body.newObject("Sketcher::SketchObject", "Sketch013")
sketch14.AttachmentSupport = (doc.getObject("XY_Plane"), [""])
sketch14.MapMode = "FlatFace"
sketch14.AttachmentOffset = App.Placement(App.Vector(0, 0, -10), App.Rotation())
sketch14.addGeometry([
    Part.LineSegment(App.Vector(-45, 2, 0), App.Vector(-45, -2, 0)),
    Part.LineSegment(App.Vector(-45, -2, 0), App.Vector(-85, -2, 0)),
    Part.LineSegment(App.Vector(-85, -2, 0), App.Vector(-85, 2, 0)),
    Part.LineSegment(App.Vector(-85, 2, 0), App.Vector(-45, 2, 0)),
], False)
sketch14.addConstraint([
    Sketcher.Constraint("Coincident", 0, 2, 1, 1),
    Sketcher.Constraint("Coincident", 1, 2, 2, 1),
    Sketcher.Constraint("Coincident", 2, 2, 3, 1),
    Sketcher.Constraint("Coincident", 3, 2, 0, 1),
    Sketcher.Constraint("Vertical", 0),
    Sketcher.Constraint("Horizontal", 1),
    Sketcher.Constraint("Vertical", 2),
    Sketcher.Constraint("Horizontal", 3),
    Sketcher.Constraint("DistanceX", 1, 2, 1, 1, Q("40 mm")),
    Sketcher.Constraint("DistanceY", 0, 2, 0, 1, Q("5 mm")),
    Sketcher.Constraint("DistanceX", 0, 2, -1, 1, Q("45 mm")),
    Sketcher.Constraint("DistanceY", 0, 2, -1, 1, Q("2.5 mm")),
])
pad3 = body.newObject("PartDesign::Pad", "Pad002")
pad3.Profile = sketch14
pad3.Length = 70
pad3.Reversed = True

# Sketch on XY plane
sketch15 = body.newObject("Sketcher::SketchObject", "Sketch014")
sketch15.AttachmentSupport = (doc.getObject("XY_Plane"), [""])
sketch15.MapMode = "FlatFace"
sketch15.AttachmentOffset = App.Placement(App.Vector(0, 0, -10), App.Rotation())
sketch15.addGeometry([
    Part.LineSegment(App.Vector(85, 2, 0), App.Vector(85, -2, 0)),
    Part.LineSegment(App.Vector(85, -2, 0), App.Vector(45, -2, 0)),
    Part.LineSegment(App.Vector(45, -2, 0), App.Vector(45, 2, 0)),
    Part.LineSegment(App.Vector(45, 2, 0), App.Vector(85, 2, 0)),
], False)
sketch15.addConstraint([
    Sketcher.Constraint("Coincident", 0, 2, 1, 1),
    Sketcher.Constraint("Coincident", 1, 2, 2, 1),
    Sketcher.Constraint("Coincident", 2, 2, 3, 1),
    Sketcher.Constraint("Coincident", 3, 2, 0, 1),
    Sketcher.Constraint("Vertical", 0),
    Sketcher.Constraint("Horizontal", 1),
    Sketcher.Constraint("Vertical", 2),
    Sketcher.Constraint("Horizontal", 3),
    Sketcher.Constraint("DistanceX", 1, 2, 1, 1, Q("40 mm")),
    Sketcher.Constraint("DistanceY", 0, 2, 0, 1, Q("5 mm")),
    Sketcher.Constraint("DistanceX", -1, 1, 0, 2, Q("85 mm")),
    Sketcher.Constraint("DistanceY", 0, 2, -1, 1, Q("2.5 mm")),
])
pad4 = body.newObject("PartDesign::Pad", "Pad003")
pad4.Profile = sketch15
pad4.Length = 70
pad4.Reversed = True

doc.recompute()
